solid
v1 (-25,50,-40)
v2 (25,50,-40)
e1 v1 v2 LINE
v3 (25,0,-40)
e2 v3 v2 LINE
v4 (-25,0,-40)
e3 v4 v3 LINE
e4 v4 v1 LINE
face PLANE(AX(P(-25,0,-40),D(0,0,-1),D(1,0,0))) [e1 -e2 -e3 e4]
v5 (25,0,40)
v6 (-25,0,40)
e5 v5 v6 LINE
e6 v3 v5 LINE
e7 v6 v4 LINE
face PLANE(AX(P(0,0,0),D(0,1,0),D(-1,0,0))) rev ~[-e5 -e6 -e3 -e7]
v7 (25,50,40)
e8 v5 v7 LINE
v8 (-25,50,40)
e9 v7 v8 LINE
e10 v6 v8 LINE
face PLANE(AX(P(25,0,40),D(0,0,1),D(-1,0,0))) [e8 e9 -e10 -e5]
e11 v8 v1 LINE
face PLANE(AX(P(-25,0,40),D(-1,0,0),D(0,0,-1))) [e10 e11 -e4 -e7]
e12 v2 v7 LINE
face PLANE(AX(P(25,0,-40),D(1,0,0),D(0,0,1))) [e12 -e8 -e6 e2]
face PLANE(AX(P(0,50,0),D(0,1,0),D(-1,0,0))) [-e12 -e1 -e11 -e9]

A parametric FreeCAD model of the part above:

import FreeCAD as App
import Part
import Sketcher

V = App.Vector
Q = App.Units.Quantity


def add_polygon(sketch, points):
    """Adds a closed chain of lines whose ends are joined by coincident constraints."""
    first, n = sketch.GeometryCount, len(points)
    for a, b in zip(points, points[1:] + points[:1]):
        sketch.addGeometry(Part.LineSegment(App.Vector(*a, 0), App.Vector(*b, 0)), False)
    for i in range(n):
        sketch.addConstraint(Sketcher.Constraint("Coincident", first + i, 2, first + (i + 1) % n, 1))

doc = App.newDocument("Part")
body = doc.addObject("PartDesign::Body", "Body")

sketch1 = body.newObject("Sketcher::SketchObject", "Sketch")
sketch1.AttachmentSupport = (doc.getObject("XZ_Plane"), [""])
sketch1.MapMode = "FlatFace"
add_polygon(sketch1, [(25, -40), (-25, -40), (-25, 40), (25, 40)])
sketch1.addConstraint(Sketcher.Constraint("Horizontal", 0))
sketch1.addConstraint(Sketcher.Constraint("Vertical", 1))
sketch1.addConstraint(Sketcher.Constraint("Horizontal", 2))
sketch1.addConstraint(Sketcher.Constraint("Vertical", 3))
sketch1.addConstraint(Sketcher.Constraint("Symmetric", 0, 2, 2, 2, -1, 1))
sketch1.addConstraint(Sketcher.Constraint("DistanceX", 0, 2, 0, 1, Q("50 mm")))
sketch1.addConstraint(Sketcher.Constraint("DistanceY", 1, 1, 1, 2, Q("80 mm")))
pad1 = body.newObject("PartDesign::Pad", "Pad")
pad1.Profile = sketch1
pad1.Length = 50
pad1.Reversed = True

doc.recompute()
